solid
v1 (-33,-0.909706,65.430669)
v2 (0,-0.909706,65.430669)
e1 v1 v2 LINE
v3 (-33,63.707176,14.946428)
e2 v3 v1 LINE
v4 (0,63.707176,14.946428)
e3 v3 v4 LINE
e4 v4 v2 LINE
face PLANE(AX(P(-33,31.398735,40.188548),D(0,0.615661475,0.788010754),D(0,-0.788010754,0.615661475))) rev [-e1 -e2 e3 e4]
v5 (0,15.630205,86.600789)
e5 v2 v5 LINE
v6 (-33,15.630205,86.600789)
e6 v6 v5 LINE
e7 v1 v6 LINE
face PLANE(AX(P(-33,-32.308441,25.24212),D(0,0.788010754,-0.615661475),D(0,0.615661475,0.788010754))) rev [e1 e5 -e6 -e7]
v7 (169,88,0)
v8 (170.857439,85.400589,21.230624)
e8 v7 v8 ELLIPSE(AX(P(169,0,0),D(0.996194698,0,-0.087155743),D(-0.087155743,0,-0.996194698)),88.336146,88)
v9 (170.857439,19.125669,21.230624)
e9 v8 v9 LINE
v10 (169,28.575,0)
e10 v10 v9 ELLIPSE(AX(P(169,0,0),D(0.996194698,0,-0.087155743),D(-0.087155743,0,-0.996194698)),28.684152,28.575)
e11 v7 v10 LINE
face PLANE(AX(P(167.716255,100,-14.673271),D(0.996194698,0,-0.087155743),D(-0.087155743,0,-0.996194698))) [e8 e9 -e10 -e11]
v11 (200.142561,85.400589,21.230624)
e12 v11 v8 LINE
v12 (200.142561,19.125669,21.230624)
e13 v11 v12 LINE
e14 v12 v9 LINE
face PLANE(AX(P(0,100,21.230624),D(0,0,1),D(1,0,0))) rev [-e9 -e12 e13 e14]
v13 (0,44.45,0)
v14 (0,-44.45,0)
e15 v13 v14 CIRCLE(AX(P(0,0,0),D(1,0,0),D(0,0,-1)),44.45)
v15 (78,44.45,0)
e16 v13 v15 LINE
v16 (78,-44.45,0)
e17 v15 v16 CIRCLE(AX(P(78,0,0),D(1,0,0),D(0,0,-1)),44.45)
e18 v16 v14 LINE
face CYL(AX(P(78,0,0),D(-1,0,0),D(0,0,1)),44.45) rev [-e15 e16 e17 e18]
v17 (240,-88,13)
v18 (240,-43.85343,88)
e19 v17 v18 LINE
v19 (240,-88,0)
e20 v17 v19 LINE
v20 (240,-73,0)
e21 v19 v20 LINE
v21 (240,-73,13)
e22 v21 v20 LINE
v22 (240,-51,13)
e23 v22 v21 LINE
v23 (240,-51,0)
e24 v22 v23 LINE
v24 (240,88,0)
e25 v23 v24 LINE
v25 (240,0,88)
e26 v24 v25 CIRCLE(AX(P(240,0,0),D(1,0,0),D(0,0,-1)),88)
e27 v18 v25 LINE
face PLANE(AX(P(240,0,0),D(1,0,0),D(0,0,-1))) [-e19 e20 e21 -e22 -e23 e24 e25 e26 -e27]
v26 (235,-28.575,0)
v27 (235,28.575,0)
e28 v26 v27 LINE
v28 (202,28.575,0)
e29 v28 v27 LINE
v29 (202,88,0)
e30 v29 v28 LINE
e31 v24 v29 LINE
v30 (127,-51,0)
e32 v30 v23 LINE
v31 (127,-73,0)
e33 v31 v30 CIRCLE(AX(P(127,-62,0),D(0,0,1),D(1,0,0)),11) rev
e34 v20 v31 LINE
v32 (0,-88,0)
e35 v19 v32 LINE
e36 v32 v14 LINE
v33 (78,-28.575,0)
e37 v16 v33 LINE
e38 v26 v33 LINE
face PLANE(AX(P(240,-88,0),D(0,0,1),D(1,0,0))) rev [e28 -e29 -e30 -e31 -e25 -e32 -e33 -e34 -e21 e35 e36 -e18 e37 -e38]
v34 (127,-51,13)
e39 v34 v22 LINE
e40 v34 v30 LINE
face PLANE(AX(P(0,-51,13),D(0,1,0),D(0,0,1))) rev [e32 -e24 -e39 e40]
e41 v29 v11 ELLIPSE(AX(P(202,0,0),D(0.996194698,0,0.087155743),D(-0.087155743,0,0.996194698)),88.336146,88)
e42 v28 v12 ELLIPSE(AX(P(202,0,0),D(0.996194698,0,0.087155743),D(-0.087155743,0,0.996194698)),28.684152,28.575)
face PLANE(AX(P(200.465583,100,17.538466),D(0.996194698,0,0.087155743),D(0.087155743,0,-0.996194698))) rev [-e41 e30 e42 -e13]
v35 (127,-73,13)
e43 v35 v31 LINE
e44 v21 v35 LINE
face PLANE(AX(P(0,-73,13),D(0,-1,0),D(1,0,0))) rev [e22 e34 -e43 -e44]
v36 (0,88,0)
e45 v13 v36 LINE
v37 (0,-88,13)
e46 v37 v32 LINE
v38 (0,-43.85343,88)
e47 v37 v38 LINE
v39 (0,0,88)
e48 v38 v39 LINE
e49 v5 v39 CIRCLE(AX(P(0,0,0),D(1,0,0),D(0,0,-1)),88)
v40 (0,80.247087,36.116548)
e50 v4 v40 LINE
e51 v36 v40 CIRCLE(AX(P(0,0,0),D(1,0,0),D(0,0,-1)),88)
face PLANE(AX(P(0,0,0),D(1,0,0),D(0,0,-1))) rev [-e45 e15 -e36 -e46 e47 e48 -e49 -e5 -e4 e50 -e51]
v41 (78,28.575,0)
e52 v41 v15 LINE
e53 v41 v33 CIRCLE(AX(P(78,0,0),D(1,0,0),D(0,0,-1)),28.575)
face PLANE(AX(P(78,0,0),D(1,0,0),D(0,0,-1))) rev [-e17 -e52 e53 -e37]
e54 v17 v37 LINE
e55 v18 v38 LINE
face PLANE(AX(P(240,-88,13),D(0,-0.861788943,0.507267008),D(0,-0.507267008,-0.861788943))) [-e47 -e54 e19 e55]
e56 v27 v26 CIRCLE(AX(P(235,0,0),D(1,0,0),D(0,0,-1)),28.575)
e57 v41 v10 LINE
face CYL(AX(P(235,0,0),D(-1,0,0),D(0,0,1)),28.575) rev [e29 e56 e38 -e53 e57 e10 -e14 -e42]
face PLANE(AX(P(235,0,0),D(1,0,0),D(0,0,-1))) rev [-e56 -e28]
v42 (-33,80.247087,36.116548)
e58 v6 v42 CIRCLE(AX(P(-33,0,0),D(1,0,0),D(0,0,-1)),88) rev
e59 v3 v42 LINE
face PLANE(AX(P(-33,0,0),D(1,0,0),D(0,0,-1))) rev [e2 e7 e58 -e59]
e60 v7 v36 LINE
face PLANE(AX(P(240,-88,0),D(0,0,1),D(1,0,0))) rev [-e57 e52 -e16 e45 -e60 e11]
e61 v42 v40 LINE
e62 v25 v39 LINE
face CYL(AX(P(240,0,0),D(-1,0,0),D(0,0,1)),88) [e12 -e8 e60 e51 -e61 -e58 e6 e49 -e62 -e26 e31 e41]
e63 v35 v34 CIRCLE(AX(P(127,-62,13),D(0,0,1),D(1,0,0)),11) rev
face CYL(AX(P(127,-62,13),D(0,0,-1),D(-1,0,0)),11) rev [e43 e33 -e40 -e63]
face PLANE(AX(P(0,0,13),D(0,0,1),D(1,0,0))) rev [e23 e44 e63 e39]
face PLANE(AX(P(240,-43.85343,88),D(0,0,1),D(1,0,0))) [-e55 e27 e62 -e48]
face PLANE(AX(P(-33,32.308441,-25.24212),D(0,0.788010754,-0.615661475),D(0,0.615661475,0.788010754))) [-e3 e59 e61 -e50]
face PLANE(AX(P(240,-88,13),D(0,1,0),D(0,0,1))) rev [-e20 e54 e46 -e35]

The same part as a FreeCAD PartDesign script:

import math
import FreeCAD as App
import Part
import Sketcher
from FreeCAD import Vector
Q = App.Units.Quantity


def add_polygon(sketch, points):
    """Adds a closed chain of lines whose ends are joined by coincident constraints."""
    first, n = sketch.GeometryCount, len(points)
    for a, b in zip(points, points[1:] + points[:1]):
        sketch.addGeometry(Part.LineSegment(App.Vector(*a, 0), App.Vector(*b, 0)), False)
    for i in range(n):
        sketch.addConstraint(Sketcher.Constraint("Coincident", first + i, 2, first + (i + 1) % n, 1))

doc = App.newDocument("Part")
params = doc.addObject("Spreadsheet::Sheet", "Params")
for row, (alias, value) in enumerate([
    ("sketch1_radius", "88 mm"),
    ("sketch1_height", "13 mm"),
    ("pad1_length", "240 mm"),
    ("sketch2_diameter", "57.15 mm"),
    ("pocket1_length", "235 mm"),
    ("sketch3_diameter", "88.9 mm"),
    ("pocket2_length", "78 mm"),
    ("sketch4_radius", "11 mm"),
    ("sketch4_width", "113 mm"),
    ("pocket3_length", "13 mm"),
    ("sketch5_radius", "88 mm"),
    ("sketch5_length", "41 mm"),
    ("pad2_length", "33 mm"),
    ("sketch6_width", "33 mm"),
    ("pocket4_length", "100 mm"),
], start=1):
    params.set(f"A{row}", alias)
    params.set(f"B{row}", "=" + value)
    params.setAlias(f"B{row}", alias)

body = doc.addObject("PartDesign::Body", "Body")

# Sketch on YZ plane
sketch1 = doc.addObject("Sketcher::SketchObject", "Sketch")
body.addObject(sketch1)
sketch1.AttachmentSupport = (doc.YZ_Plane, [""])
sketch1.MapMode = "FlatFace"
sketch1.addGeometry(Part.ArcOfCircle(Part.Circle(Vector(0, 0, 0), Vector(0, 0, 1), 88), math.radians(0), math.radians(90)), False)
sketch1.addGeometry(Part.LineSegment(Vector(0, 88, 0), Vector(-44, 88, 0)), False)
sketch1.addGeometry(Part.LineSegment(Vector(-44, 88, 0), Vector(-88, 13, 0)), False)
sketch1.addGeometry(Part.LineSegment(Vector(-88, 13, 0), Vector(-88, 0, 0)), False)
sketch1.addGeometry(Part.LineSegment(Vector(-88, 0, 0), Vector(88, 0, 0)), False)
sketch1.addConstraint(Sketcher.Constraint("Tangent", 0, 2, 1, 1))
sketch1.addConstraint(Sketcher.Constraint("Coincident", 1, 2, 2, 1))
sketch1.addConstraint(Sketcher.Constraint("Coincident", 2, 2, 3, 1))
sketch1.addConstraint(Sketcher.Constraint("Coincident", 3, 2, 4, 1))
sketch1.addConstraint(Sketcher.Constraint("Coincident", 4, 2, 0, 1))
sketch1.addConstraint(Sketcher.Constraint("Horizontal", 1))
sketch1.addConstraint(Sketcher.Constraint("Vertical", 3))
sketch1.addConstraint(Sketcher.Constraint("Horizontal", 4))
sketch1.addConstraint(Sketcher.Constraint("Coincident", 0, 3, -1, 1))
sketch1.addConstraint(Sketcher.Constraint("Symmetric", 3, 2, 4, 2, -1, 1))
sketch1.addConstraint(Sketcher.Constraint("Radius", 0, 88.0))
sketch1.addConstraint(Sketcher.Constraint("DistanceY", 3, 2, 3, 1, 13.0))
sketch1.addConstraint(Sketcher.Constraint("DistanceX", 1, 2, 1, 1, 43.85343))
sketch1.setExpression("Constraints[10]", "Params.sketch1_radius")
sketch1.setExpression("Constraints[11]", "Params.sketch1_height")
pad1 = doc.addObject("PartDesign::Pad", "Pad")
body.addObject(pad1)
pad1.Profile = sketch1
pad1.setExpression("Length", "Params.pad1_length")

# Sketch on YZ plane
sketch2 = doc.addObject("Sketcher::SketchObject", "Sketch001")
body.addObject(sketch2)
sketch2.AttachmentSupport = (doc.YZ_Plane, [""])
sketch2.MapMode = "FlatFace"
sketch2.addGeometry(Part.Circle(Vector(0, 0, 0), Vector(0, 0, 1), 29), False)
sketch2.addConstraint(Sketcher.Constraint("Coincident", 0, 3, -1, 1))
sketch2.addConstraint(Sketcher.Constraint("Diameter", 0, 57.15))
sketch2.setExpression("Constraints[1]", "Params.sketch2_diameter")
pocket1 = doc.addObject("PartDesign::Pocket", "Pocket")
body.addObject(pocket1)
pocket1.Profile = sketch2
pocket1.setExpression("Length", "Params.pocket1_length")
pocket1.Reversed = True

# Sketch on YZ plane
sketch3 = doc.addObject("Sketcher::SketchObject", "Sketch002")
body.addObject(sketch3)
sketch3.AttachmentSupport = (doc.YZ_Plane, [""])
sketch3.MapMode = "FlatFace"
sketch3.addGeometry(Part.Circle(Vector(0, 0, 0), Vector(0, 0, 1), 44), False)
sketch3.addConstraint(Sketcher.Constraint("Coincident", 0, 3, -1, 1))
sketch3.addConstraint(Sketcher.Constraint("Diameter", 0, 88.9))
sketch3.setExpression("Constraints[1]", "Params.sketch3_diameter")
pocket2 = doc.addObject("PartDesign::Pocket", "Pocket001")
body.addObject(pocket2)
pocket2.Profile = sketch3
pocket2.setExpression("Length", "Params.pocket2_length")
pocket2.Reversed = True

# Sketch on XY plane
sketch4 = doc.addObject("Sketcher::SketchObject", "Sketch003")
body.addObject(sketch4)
sketch4.AttachmentSupport = (doc.XY_Plane, [""])
sketch4.MapMode = "FlatFace"
sketch4.addGeometry(Part.ArcOfCircle(Part.Circle(Vector(127, -62, 0), Vector(0, 0, 1), 11), math.radians(90), math.radians(270)), False)
sketch4.addGeometry(Part.LineSegment(Vector(127, -73, 0), Vector(240, -73, 0)), False)
sketch4.addGeometry(Part.LineSegment(Vector(240, -73, 0), Vector(240, -51, 0)), False)
sketch4.addGeometry(Part.LineSegment(Vector(240, -51, 0), Vector(127, -51, 0)), False)
sketch4.addConstraint(Sketcher.Constraint("Tangent", 0, 2, 1, 1))
sketch4.addConstraint(Sketcher.Constraint("Coincident", 1, 2, 2, 1))
sketch4.addConstraint(Sketcher.Constraint("Coincident", 2, 2, 3, 1))
sketch4.addConstraint(Sketcher.Constraint("Tangent", 3, 2, 0, 1))
sketch4.addConstraint(Sketcher.Constraint("Horizontal", 1))
sketch4.addConstraint(Sketcher.Constraint("Vertical", 2))
sketch4.addConstraint(Sketcher.Constraint("Horizontal", 3))
sketch4.addConstraint(Sketcher.Constraint("Radius", 0, 11.0))
sketch4.addConstraint(Sketcher.Constraint("DistanceX", 1, 1, 1, 2, 113.0))
sketch4.addConstraint(Sketcher.Constraint("DistanceX", -1, 1, 0, 3, 127.0))
sketch4.addConstraint(Sketcher.Constraint("DistanceY", 0, 3, -1, 1, 62.0))
sketch4.setExpression("Constraints[7]", "Params.sketch4_radius")
sketch4.setExpression("Constraints[8]", "Params.sketch4_width")
pocket3 = doc.addObject("PartDesign::Pocket", "Pocket002")
body.addObject(pocket3)
pocket3.Profile = sketch4
pocket3.setExpression("Length", "Params.pocket3_length")
pocket3.Reversed = True

# Sketch on YZ plane
sketch5 = doc.addObject("Sketcher::SketchObject", "Sketch004")
body.addObject(sketch5)
sketch5.AttachmentSupport = (doc.YZ_Plane, [""])
sketch5.MapMode = "FlatFace"
sketch5.AttachmentOffset = App.Placement(Vector(0, 0, -33), App.Rotation())
sketch5.addGeometry(Part.LineSegment(Vector(-1, 65, 0), Vector(31, 40, 0)), False)
sketch5.addGeometry(Part.LineSegment(Vector(31, 40, 0), Vector(64, 15, 0)), False)
sketch5.addGeometry(Part.LineSegment(Vector(64, 15, 0), Vector(80, 36, 0)), False)
sketch5.addGeometry(Part.ArcOfCircle(Part.Circle(Vector(0, 0, 0), Vector(0, 0, 1), 88), math.radians(24), math.radians(80)), False)
sketch5.addGeometry(Part.LineSegment(Vector(16, 87, 0), Vector(-1, 65, 0)), False)
sketch5.addConstraint(Sketcher.Constraint("Coincident", 0, 2, 1, 1))
sketch5.addConstraint(Sketcher.Constraint("Coincident", 1, 2, 2, 1))
sketch5.addConstraint(Sketcher.Constraint("Coincident", 2, 2, 3, 1))
sketch5.addConstraint(Sketcher.Constraint("Coincident", 3, 2, 4, 1))
sketch5.addConstraint(Sketcher.Constraint("Coincident", 4, 2, 0, 1))
sketch5.addConstraint(Sketcher.Constraint("Coincident", 3, 3, -1, 1))
sketch5.addConstraint(Sketcher.Constraint("Parallel", 0, 1))
sketch5.addConstraint(Sketcher.Constraint("Perpendicular", 1, 2))
sketch5.addConstraint(Sketcher.Constraint("Parallel", 2, 4))
sketch5.addConstraint(Sketcher.Constraint("Equal", 0, 1))
sketch5.addConstraint(Sketcher.Constraint("Equal", 2, 4))
sketch5.addConstraint(Sketcher.Constraint("Radius", 3, 88.0))
sketch5.addConstraint(Sketcher.Constraint("Angle", 0, Q("-38 deg")))
sketch5.addConstraint(Sketcher.Constraint("Distance", 0, 41.0))
sketch5.addConstraint(Sketcher.Constraint("DistanceY", 2, 2, 0, 2, 4.072))
sketch5.setExpression("Constraints[11]", "Params.sketch5_radius")
sketch5.setExpression("Constraints[13]", "Params.sketch5_length")
pad2 = doc.addObject("PartDesign::Pad", "Pad001")
body.addObject(pad2)
pad2.Profile = sketch5
pad2.setExpression("Length", "Params.pad2_length")

# Sketch on XZ plane
sketch6 = doc.addObject("Sketcher::SketchObject", "Sketch005")
body.addObject(sketch6)
sketch6.AttachmentSupport = (doc.XZ_Plane, [""])
sketch6.MapMode = "FlatFace"
add_polygon(sketch6, [(202, 0), (169, 0), (171, 21), (200, 21)])  # lines 0-3
sketch6.addConstraint(Sketcher.Constraint("Horizontal", 0))
sketch6.addConstraint(Sketcher.Constraint("Horizontal", 2))
sketch6.addConstraint(Sketcher.Constraint("PointOnObject", 0, 2, -1))
sketch6.addConstraint(Sketcher.Constraint("Equal", 1, 3))
sketch6.addConstraint(Sketcher.Constraint("DistanceX", 0, 2, 0, 1, 33.0))
sketch6.addConstraint(Sketcher.Constraint("Angle", 1, Q("85 deg")))
sketch6.addConstraint(Sketcher.Constraint("DistanceX", -1, 1, 0, 2, 169.0))
sketch6.addConstraint(Sketcher.Constraint("Distance", 1, 21.311722))
sketch6.setExpression("Constraints[8]", "Params.sketch6_width")
pocket4 = doc.addObject("PartDesign::Pocket", "Pocket003")
body.addObject(pocket4)
pocket4.Profile = sketch6
pocket4.setExpression("Length", "Params.pocket4_length")

doc.recompute()
